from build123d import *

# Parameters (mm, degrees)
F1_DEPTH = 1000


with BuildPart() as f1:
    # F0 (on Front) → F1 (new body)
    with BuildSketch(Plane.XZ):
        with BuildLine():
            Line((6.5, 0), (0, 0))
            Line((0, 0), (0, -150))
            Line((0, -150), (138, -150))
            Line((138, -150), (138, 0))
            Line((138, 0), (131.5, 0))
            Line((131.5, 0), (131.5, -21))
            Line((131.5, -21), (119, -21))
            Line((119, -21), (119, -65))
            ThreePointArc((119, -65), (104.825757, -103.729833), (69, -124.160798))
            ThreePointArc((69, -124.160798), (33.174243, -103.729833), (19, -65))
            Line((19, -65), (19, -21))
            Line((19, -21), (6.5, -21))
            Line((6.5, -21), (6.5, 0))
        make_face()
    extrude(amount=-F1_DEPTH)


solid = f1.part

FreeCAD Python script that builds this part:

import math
import FreeCAD as App
import Part
import Sketcher
Q = App.Units.Quantity

doc = App.newDocument("Part")
body = doc.addObject("PartDesign::Body", "Body")

sketch1 = body.newObject("Sketcher::SketchObject", "Sketch")
sketch1.AttachmentSupport = (doc.getObject("XZ_Plane"), [""])
sketch1.MapMode = "FlatFace"
sketch1.addGeometry([
    Part.LineSegment(App.Vector(6, 0, 0), App.Vector(0, 0, 0)),
    Part.LineSegment(App.Vector(0, 0, 0), App.Vector(0, -150, 0)),
    Part.LineSegment(App.Vector(0, -150, 0), App.Vector(138, -150, 0)),
    Part.LineSegment(App.Vector(138, -150, 0), App.Vector(138, 0, 0)),
    Part.LineSegment(App.Vector(138, 0, 0), App.Vector(132, 0, 0)),
    Part.LineSegment(App.Vector(132, 0, 0), App.Vector(132, -21, 0)),
    Part.LineSegment(App.Vector(132, -21, 0), App.Vector(119, -21, 0)),
    Part.LineSegment(App.Vector(119, -21, 0), App.Vector(119, -65, 0)),
    Part.ArcOfCircle(Part.Circle(App.Vector(59, -65, 0), App.Vector(0, 0, 1), 60), math.radians(-80), math.radians(0)),
    Part.ArcOfCircle(Part.Circle(App.Vector(79, -65, 0), App.Vector(0, 0, 1), 60), math.radians(-180), math.radians(-100)),
    Part.LineSegment(App.Vector(19, -65, 0), App.Vector(19, -21, 0)),
    Part.LineSegment(App.Vector(19, -21, 0), App.Vector(6, -21, 0)),
    Part.LineSegment(App.Vector(6, -21, 0), App.Vector(6, 0, 0)),
], False)
sketch1.addConstraint([
    Sketcher.Constraint("Coincident", 0, 2, 1, 1),
    Sketcher.Constraint("Coincident", 1, 2, 2, 1),
    Sketcher.Constraint("Coincident", 2, 2, 3, 1),
    Sketcher.Constraint("Coincident", 3, 2, 4, 1),
    Sketcher.Constraint("Coincident", 4, 2, 5, 1),
    Sketcher.Constraint("Coincident", 5, 2, 6, 1),
    Sketcher.Constraint("Coincident", 6, 2, 7, 1),
    Sketcher.Constraint("Tangent", 7, 2, 8, 2),
    Sketcher.Constraint("Coincident", 8, 1, 9, 2),
    Sketcher.Constraint("Tangent", 9, 1, 10, 1),
    Sketcher.Constraint("Coincident", 10, 2, 11, 1),
    Sketcher.Constraint("Coincident", 11, 2, 12, 1),
    Sketcher.Constraint("Coincident", 12, 2, 0, 1),
    Sketcher.Constraint("Horizontal", 0),
    Sketcher.Constraint("Vertical", 1),
    Sketcher.Constraint("Horizontal", 2),
    Sketcher.Constraint("Vertical", 3),
    Sketcher.Constraint("Horizontal", 4),
    Sketcher.Constraint("Vertical", 5),
    Sketcher.Constraint("Horizontal", 6),
    Sketcher.Constraint("Vertical", 7),
    Sketcher.Constraint("Vertical", 10),
    Sketcher.Constraint("Horizontal", 11),
    Sketcher.Constraint("Vertical", 12),
    Sketcher.Constraint("Coincident", 0, 2, -1, 1),
    Sketcher.Constraint("Equal", 8, 9),
    Sketcher.Constraint("PointOnObject", 3, 2, -1),
    Sketcher.Constraint("Horizontal", 8, 3, 9, 3),
    Sketcher.Constraint("Horizontal", 6, 2, 10, 2),
    Sketcher.Constraint("Equal", 0, 4),
    Sketcher.Constraint("Equal", 6, 11),
    Sketcher.Constraint("Radius", 8, Q("60.000001 mm")),
    Sketcher.Constraint("DistanceX", 2, 1, 2, 2, Q("138 mm")),
    Sketcher.Constraint("DistanceY", 1, 2, 1, 1, Q("150 mm")),
    Sketcher.Constraint("DistanceY", 5, 2, 5, 1, Q("21 mm")),
    Sketcher.Constraint("DistanceY", 7, 2, 7, 1, Q("44 mm")),
    Sketcher.Constraint("DistanceX", 0, 2, 0, 1, Q("6.5 mm")),
    Sketcher.Constraint("DistanceX", 6, 2, 6, 1, Q("12.5 mm")),
])
pad1 = body.newObject("PartDesign::Pad", "Pad")
pad1.Profile = sketch1
pad1.Length = 1000
pad1.Reversed = True

doc.recompute()
